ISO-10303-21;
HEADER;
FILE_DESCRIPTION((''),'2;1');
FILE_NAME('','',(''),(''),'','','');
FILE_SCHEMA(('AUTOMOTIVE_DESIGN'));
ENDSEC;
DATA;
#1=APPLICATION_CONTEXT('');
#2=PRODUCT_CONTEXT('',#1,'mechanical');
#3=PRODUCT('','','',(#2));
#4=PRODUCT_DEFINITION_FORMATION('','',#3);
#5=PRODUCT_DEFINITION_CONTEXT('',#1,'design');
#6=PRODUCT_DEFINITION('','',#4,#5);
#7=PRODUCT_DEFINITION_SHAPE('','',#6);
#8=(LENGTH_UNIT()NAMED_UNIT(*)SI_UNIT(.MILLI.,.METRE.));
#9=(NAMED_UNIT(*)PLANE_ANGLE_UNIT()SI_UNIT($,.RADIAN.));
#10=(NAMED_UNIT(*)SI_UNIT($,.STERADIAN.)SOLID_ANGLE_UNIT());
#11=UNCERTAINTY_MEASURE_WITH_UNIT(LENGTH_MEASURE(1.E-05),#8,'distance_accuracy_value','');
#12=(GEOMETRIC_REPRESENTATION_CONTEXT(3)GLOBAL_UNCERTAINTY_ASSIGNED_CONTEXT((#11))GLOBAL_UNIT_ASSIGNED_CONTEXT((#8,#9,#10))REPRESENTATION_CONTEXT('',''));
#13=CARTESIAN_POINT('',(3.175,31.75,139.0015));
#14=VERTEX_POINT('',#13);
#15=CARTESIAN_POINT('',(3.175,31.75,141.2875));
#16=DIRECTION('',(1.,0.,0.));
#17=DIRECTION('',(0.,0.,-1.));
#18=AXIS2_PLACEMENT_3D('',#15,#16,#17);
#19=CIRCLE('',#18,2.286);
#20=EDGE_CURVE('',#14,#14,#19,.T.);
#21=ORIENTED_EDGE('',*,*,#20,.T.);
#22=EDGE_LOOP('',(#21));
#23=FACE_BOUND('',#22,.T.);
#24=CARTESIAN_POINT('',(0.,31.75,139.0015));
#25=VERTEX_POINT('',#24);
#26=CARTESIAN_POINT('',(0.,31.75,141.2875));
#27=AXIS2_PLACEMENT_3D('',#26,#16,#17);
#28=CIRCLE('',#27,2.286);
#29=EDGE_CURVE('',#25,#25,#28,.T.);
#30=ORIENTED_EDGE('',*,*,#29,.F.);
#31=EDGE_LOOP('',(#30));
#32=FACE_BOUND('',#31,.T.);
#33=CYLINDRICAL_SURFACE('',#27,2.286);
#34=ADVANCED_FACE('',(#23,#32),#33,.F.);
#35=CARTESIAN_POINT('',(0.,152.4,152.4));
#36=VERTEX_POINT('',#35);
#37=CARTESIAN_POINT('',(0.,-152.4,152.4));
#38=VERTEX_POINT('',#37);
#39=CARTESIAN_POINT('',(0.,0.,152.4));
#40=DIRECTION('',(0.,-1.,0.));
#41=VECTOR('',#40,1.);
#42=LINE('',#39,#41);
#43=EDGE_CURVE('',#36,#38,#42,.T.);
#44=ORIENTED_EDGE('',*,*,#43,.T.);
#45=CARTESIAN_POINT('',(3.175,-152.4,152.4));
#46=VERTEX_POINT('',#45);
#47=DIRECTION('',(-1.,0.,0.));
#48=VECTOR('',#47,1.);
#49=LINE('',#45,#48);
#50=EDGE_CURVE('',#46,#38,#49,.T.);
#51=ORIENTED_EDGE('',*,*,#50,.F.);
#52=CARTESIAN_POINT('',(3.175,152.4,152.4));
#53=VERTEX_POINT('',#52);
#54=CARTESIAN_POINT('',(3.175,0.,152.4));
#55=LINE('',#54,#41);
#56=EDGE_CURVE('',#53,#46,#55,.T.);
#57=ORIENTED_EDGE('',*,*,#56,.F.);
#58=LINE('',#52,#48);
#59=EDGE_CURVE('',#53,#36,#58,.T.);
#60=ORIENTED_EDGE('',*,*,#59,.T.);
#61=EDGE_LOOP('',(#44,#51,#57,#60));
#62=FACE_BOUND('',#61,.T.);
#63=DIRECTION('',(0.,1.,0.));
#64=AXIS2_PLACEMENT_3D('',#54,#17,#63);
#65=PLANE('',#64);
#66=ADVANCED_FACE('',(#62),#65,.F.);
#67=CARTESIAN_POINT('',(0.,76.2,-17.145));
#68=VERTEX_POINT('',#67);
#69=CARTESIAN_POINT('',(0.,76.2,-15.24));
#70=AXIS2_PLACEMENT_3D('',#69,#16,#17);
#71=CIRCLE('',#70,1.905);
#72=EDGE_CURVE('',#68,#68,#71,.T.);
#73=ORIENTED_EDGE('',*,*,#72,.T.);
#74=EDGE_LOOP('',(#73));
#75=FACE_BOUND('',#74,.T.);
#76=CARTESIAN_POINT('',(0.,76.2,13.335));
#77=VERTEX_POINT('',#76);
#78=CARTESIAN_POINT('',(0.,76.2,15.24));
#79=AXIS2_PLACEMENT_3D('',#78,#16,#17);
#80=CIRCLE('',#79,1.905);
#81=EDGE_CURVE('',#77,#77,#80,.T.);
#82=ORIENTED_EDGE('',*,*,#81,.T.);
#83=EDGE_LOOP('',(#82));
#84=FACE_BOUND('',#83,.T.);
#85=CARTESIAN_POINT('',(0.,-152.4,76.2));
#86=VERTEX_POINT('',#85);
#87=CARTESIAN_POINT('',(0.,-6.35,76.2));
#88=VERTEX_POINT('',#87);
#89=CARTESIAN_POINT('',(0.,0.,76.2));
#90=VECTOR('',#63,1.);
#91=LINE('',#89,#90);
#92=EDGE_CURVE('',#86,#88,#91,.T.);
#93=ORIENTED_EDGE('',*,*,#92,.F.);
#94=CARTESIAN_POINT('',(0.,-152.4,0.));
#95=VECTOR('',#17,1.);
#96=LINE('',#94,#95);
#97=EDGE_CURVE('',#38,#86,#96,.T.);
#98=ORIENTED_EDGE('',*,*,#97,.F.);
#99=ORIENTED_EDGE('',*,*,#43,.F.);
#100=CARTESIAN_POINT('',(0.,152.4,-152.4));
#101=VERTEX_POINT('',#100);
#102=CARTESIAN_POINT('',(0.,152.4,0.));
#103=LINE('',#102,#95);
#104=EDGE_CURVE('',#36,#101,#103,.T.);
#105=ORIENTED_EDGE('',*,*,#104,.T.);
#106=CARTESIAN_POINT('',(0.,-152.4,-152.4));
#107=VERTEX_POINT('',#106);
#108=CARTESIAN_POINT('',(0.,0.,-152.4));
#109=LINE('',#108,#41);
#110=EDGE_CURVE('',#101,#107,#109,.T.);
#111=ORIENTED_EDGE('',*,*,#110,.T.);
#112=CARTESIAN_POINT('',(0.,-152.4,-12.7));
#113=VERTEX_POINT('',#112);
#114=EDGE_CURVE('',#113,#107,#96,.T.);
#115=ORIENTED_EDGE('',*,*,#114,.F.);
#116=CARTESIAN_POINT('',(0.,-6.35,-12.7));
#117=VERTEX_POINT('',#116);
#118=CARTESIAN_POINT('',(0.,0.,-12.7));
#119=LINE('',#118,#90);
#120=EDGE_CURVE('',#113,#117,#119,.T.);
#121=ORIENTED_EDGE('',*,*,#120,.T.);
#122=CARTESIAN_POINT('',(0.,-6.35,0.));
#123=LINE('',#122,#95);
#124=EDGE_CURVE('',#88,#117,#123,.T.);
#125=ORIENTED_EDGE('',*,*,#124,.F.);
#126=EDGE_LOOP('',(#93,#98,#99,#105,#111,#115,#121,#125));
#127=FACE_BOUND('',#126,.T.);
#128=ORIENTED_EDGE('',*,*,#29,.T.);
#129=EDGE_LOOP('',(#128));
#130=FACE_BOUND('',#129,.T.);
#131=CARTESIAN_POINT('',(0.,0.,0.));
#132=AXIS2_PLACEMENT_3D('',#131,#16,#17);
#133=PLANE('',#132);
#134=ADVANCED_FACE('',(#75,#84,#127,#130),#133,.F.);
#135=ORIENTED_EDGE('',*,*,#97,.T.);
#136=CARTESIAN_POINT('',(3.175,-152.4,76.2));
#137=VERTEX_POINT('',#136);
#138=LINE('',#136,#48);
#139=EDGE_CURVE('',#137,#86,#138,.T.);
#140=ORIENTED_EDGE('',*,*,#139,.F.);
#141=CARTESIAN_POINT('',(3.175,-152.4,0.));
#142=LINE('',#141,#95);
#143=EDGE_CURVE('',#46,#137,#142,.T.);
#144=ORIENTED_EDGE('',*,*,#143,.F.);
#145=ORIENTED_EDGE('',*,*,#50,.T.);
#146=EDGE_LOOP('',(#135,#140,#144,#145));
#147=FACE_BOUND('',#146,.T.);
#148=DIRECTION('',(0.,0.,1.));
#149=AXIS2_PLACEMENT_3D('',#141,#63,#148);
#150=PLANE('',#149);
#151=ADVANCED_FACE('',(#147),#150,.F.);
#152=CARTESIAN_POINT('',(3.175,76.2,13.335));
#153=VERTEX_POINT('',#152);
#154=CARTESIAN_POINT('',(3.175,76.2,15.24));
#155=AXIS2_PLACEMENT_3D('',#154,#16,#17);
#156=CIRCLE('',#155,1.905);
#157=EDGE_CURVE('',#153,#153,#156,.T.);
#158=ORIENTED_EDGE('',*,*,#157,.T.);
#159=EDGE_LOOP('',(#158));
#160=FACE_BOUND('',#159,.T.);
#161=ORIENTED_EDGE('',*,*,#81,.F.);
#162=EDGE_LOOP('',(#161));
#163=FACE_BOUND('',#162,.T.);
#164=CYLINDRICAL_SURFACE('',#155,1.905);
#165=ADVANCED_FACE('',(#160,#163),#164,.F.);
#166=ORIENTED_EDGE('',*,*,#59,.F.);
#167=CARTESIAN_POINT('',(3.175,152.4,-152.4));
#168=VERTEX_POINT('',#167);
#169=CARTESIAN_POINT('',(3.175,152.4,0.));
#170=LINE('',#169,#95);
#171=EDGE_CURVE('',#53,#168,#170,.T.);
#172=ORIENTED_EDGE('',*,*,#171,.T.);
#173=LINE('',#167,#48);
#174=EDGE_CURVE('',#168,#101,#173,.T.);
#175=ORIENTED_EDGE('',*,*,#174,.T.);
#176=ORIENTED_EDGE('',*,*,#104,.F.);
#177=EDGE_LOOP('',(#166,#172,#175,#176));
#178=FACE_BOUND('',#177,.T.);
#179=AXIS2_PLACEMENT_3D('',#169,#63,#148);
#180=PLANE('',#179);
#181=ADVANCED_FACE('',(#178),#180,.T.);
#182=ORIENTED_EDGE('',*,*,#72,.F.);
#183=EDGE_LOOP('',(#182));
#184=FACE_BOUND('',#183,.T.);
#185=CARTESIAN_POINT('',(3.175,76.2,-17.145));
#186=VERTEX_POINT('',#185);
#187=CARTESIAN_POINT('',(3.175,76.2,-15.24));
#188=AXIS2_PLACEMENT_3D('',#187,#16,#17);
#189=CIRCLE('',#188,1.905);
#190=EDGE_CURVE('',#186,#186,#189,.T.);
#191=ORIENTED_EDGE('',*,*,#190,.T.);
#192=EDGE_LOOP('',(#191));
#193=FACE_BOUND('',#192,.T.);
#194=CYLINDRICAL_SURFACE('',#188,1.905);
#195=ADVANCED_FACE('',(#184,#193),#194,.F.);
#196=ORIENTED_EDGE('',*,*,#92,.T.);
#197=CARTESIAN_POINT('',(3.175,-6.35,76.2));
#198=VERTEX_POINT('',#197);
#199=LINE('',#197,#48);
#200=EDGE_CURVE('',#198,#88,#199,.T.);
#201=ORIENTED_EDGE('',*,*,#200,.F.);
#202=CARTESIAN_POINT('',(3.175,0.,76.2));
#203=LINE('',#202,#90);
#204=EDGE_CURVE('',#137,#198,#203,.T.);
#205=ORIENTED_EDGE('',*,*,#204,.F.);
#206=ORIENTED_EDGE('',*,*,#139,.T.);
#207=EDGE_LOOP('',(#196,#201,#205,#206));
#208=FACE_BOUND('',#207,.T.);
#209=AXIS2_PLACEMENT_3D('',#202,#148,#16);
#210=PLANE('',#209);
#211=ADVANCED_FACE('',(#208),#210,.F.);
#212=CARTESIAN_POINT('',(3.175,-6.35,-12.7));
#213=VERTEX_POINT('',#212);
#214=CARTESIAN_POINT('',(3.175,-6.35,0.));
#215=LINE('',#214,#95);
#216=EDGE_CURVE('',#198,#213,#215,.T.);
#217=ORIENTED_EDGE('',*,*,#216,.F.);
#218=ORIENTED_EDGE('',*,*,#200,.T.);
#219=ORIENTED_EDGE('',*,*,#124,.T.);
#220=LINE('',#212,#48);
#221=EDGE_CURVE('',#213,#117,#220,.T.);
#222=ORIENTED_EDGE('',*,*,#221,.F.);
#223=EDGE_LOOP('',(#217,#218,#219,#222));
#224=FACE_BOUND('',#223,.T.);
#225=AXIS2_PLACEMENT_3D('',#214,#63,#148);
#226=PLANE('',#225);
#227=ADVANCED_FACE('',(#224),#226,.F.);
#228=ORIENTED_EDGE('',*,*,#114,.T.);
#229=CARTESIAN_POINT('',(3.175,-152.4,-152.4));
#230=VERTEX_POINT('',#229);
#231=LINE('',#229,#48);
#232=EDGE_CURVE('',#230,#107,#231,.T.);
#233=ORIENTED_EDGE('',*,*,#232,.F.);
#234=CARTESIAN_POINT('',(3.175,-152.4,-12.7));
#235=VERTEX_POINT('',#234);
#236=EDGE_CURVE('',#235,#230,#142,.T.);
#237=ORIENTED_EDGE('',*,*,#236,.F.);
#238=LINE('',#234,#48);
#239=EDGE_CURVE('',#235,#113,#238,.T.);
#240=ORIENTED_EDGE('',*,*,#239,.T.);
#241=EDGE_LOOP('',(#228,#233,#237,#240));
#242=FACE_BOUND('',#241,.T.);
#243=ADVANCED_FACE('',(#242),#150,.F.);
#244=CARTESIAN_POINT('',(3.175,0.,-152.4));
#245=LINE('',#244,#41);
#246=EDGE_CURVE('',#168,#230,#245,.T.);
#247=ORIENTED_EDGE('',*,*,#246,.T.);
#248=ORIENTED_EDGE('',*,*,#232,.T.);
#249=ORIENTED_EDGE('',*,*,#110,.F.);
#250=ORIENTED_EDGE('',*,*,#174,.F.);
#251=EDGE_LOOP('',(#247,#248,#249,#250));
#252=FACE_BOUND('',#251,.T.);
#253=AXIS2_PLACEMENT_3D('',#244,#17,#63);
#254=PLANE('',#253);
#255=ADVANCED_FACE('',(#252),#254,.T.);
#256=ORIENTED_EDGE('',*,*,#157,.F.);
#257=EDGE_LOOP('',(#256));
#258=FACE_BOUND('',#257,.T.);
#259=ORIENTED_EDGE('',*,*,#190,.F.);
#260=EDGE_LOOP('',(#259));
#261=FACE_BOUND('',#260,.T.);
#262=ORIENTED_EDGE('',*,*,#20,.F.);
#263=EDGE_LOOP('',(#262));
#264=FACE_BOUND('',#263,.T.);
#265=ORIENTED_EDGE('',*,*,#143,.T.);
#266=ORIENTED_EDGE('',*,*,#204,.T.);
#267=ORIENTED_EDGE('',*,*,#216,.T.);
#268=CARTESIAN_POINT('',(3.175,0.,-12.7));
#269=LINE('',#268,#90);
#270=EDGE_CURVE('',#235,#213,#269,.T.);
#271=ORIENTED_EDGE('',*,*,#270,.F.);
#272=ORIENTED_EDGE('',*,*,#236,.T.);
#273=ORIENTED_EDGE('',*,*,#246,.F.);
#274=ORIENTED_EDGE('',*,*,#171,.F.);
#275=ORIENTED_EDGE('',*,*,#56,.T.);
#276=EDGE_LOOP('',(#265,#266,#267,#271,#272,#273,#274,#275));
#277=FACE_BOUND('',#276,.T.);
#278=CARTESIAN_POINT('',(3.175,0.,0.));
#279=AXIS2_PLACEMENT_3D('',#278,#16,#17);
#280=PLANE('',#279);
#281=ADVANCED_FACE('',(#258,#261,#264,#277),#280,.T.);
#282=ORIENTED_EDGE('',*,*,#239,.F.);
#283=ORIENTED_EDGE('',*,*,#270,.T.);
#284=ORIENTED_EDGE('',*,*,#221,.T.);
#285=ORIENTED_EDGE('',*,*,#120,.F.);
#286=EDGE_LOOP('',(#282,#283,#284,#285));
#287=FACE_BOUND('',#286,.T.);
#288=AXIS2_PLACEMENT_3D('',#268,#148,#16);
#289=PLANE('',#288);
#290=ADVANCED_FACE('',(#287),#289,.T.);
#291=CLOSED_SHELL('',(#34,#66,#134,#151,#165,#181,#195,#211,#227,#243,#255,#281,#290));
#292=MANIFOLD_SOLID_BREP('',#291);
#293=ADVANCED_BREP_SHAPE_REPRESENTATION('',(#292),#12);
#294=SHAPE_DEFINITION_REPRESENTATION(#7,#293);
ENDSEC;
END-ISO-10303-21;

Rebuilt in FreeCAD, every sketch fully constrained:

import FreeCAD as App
import Part
import Sketcher
Q = App.Units.Quantity

doc = App.newDocument("Part")
params = doc.addObject("Spreadsheet::Sheet", "Params")
for row, (alias, value) in enumerate([
    ("sketch1_width", "12 in"),
    ("sketch1_height", "3 in"),
    ("sketch1_height2", "3.5 in"),
    ("sketch1_width2", "5.75 in"),
    ("pad1_length", "0.125 in"),
    ("sketch2_diameter", "0.18 in"),
    ("sketch3_diameter", "0.15 in"),
    ("hole_diameter", "0.15 in"),
], start=1):
    params.set(f"A{row}", alias)
    params.set(f"B{row}", "=" + value)
    params.setAlias(f"B{row}", alias)

body = doc.addObject("PartDesign::Body", "Body")

sketch1 = doc.addObject("Sketcher::SketchObject", "Sketch")
body.addObject(sketch1)
sketch1.AttachmentSupport = (doc.YZ_Plane, [""])
sketch1.MapMode = "FlatFace"
sketch1.addGeometry([
    Part.LineSegment(App.Vector(152, -152, 0), App.Vector(152, 152, 0)),
    Part.LineSegment(App.Vector(152, 152, 0), App.Vector(-152, 152, 0)),
    Part.LineSegment(App.Vector(-152, 152, 0), App.Vector(-152, 76, 0)),
    Part.LineSegment(App.Vector(-152, 76, 0), App.Vector(-6, 76, 0)),
    Part.LineSegment(App.Vector(-6, 76, 0), App.Vector(-6, -13, 0)),
    Part.LineSegment(App.Vector(-6, -13, 0), App.Vector(-152, -13, 0)),
    Part.LineSegment(App.Vector(-152, -13, 0), App.Vector(-152, -152, 0)),
    Part.LineSegment(App.Vector(-152, -152, 0), App.Vector(152, -152, 0)),
], False)
sketch1.addConstraint([
    Sketcher.Constraint("Coincident", 0, 2, 1, 1),
    Sketcher.Constraint("Coincident", 1, 2, 2, 1),
    Sketcher.Constraint("Coincident", 2, 2, 3, 1),
    Sketcher.Constraint("Coincident", 3, 2, 4, 1),
    Sketcher.Constraint("Coincident", 4, 2, 5, 1),
    Sketcher.Constraint("Coincident", 5, 2, 6, 1),
    Sketcher.Constraint("Coincident", 6, 2, 7, 1),
    Sketcher.Constraint("Coincident", 7, 2, 0, 1),
    Sketcher.Constraint("Vertical", 0),
    Sketcher.Constraint("Horizontal", 1),
    Sketcher.Constraint("Vertical", 2),
    Sketcher.Constraint("Horizontal", 3),
    Sketcher.Constraint("Vertical", 4),
    Sketcher.Constraint("Horizontal", 5),
    Sketcher.Constraint("Vertical", 6),
    Sketcher.Constraint("Horizontal", 7),
    Sketcher.Constraint("Symmetric", 0, 2, 6, 2, -1, 1),
    Sketcher.Constraint("Vertical", 2, 2, 5, 2),
    Sketcher.Constraint("Equal", 7, 0),
    Sketcher.Constraint("DistanceX", 1, 2, 1, 1, Q("12 in")),
    Sketcher.Constraint("DistanceY", 2, 2, 2, 1, Q("3 in")),
    Sketcher.Constraint("DistanceY", 4, 2, 4, 1, Q("3.5 in")),
    Sketcher.Constraint("DistanceX", 3, 1, 3, 2, Q("5.75 in")),
])
sketch1.setExpression("Constraints[19]", "Params.sketch1_width")
sketch1.setExpression("Constraints[20]", "Params.sketch1_height")
sketch1.setExpression("Constraints[21]", "Params.sketch1_height2")
sketch1.setExpression("Constraints[22]", "Params.sketch1_width2")
pad1 = doc.addObject("PartDesign::Pad", "Pad")
body.addObject(pad1)
pad1.Profile = sketch1
pad1.setExpression("Length", "Params.pad1_length")

sketch2 = doc.addObject("Sketcher::SketchObject", "Sketch001")
body.addObject(sketch2)
sketch2.AttachmentSupport = (doc.YZ_Plane, [""])
sketch2.MapMode = "FlatFace"
sketch2.AttachmentOffset = App.Placement(App.Vector(0, 0, 0.125 * 25.4), App.Rotation())
sketch2.addGeometry(Part.Circle(App.Vector(31.8, 141.3, 0), App.Vector(0, 0, 1), 2.3), False)
sketch2.addConstraint([
    Sketcher.Constraint("Diameter", 0, Q("0.18 in")),
    Sketcher.Constraint("DistanceX", -1, 1, 0, 3, Q("1.25 in")),
    Sketcher.Constraint("DistanceY", -1, 1, 0, 3, Q("5.5625 in")),
])
sketch2.setExpression("Constraints[0]", "Params.sketch2_diameter")
pocket1 = doc.addObject("PartDesign::Pocket", "Pocket")
body.addObject(pocket1)
pocket1.Profile = sketch2
pocket1.Type = "ThroughAll"

sketch3 = doc.addObject("Sketcher::SketchObject", "Sketch002")
body.addObject(sketch3)
sketch3.AttachmentSupport = (doc.YZ_Plane, [""])
sketch3.MapMode = "FlatFace"
sketch3.AttachmentOffset = App.Placement(App.Vector(0, 0, 0.125 * 25.4), App.Rotation())
sketch3.addGeometry([
    Part.Circle(App.Vector(76.2, 15.2, 0), App.Vector(0, 0, 1), 1.9),
    Part.Circle(App.Vector(76.2, -15.2, 0), App.Vector(0, 0, 1), 1.9),
], False)
sketch3.addConstraint([
    Sketcher.Constraint("Equal", 0, 1),
    Sketcher.Constraint("Symmetric", 0, 3, 1, 3, -1),
    Sketcher.Constraint("Diameter", 0, Q("0.15 in")),
    Sketcher.Constraint("DistanceX", -1, 1, 0, 3, Q("3 in")),
    Sketcher.Constraint("DistanceY", -1, 1, 0, 3, Q("0.6 in")),
])
sketch3.setExpression("Constraints[2]", "Params.sketch3_diameter")
doc.recompute()
hole = doc.addObject("PartDesign::Hole", "Hole")
body.addObject(hole)
hole.Profile = sketch3
hole.ThreadType = "None"
hole.setExpression("Diameter", "Params.hole_diameter")
hole.DepthType = "ThroughAll"

doc.recompute()
